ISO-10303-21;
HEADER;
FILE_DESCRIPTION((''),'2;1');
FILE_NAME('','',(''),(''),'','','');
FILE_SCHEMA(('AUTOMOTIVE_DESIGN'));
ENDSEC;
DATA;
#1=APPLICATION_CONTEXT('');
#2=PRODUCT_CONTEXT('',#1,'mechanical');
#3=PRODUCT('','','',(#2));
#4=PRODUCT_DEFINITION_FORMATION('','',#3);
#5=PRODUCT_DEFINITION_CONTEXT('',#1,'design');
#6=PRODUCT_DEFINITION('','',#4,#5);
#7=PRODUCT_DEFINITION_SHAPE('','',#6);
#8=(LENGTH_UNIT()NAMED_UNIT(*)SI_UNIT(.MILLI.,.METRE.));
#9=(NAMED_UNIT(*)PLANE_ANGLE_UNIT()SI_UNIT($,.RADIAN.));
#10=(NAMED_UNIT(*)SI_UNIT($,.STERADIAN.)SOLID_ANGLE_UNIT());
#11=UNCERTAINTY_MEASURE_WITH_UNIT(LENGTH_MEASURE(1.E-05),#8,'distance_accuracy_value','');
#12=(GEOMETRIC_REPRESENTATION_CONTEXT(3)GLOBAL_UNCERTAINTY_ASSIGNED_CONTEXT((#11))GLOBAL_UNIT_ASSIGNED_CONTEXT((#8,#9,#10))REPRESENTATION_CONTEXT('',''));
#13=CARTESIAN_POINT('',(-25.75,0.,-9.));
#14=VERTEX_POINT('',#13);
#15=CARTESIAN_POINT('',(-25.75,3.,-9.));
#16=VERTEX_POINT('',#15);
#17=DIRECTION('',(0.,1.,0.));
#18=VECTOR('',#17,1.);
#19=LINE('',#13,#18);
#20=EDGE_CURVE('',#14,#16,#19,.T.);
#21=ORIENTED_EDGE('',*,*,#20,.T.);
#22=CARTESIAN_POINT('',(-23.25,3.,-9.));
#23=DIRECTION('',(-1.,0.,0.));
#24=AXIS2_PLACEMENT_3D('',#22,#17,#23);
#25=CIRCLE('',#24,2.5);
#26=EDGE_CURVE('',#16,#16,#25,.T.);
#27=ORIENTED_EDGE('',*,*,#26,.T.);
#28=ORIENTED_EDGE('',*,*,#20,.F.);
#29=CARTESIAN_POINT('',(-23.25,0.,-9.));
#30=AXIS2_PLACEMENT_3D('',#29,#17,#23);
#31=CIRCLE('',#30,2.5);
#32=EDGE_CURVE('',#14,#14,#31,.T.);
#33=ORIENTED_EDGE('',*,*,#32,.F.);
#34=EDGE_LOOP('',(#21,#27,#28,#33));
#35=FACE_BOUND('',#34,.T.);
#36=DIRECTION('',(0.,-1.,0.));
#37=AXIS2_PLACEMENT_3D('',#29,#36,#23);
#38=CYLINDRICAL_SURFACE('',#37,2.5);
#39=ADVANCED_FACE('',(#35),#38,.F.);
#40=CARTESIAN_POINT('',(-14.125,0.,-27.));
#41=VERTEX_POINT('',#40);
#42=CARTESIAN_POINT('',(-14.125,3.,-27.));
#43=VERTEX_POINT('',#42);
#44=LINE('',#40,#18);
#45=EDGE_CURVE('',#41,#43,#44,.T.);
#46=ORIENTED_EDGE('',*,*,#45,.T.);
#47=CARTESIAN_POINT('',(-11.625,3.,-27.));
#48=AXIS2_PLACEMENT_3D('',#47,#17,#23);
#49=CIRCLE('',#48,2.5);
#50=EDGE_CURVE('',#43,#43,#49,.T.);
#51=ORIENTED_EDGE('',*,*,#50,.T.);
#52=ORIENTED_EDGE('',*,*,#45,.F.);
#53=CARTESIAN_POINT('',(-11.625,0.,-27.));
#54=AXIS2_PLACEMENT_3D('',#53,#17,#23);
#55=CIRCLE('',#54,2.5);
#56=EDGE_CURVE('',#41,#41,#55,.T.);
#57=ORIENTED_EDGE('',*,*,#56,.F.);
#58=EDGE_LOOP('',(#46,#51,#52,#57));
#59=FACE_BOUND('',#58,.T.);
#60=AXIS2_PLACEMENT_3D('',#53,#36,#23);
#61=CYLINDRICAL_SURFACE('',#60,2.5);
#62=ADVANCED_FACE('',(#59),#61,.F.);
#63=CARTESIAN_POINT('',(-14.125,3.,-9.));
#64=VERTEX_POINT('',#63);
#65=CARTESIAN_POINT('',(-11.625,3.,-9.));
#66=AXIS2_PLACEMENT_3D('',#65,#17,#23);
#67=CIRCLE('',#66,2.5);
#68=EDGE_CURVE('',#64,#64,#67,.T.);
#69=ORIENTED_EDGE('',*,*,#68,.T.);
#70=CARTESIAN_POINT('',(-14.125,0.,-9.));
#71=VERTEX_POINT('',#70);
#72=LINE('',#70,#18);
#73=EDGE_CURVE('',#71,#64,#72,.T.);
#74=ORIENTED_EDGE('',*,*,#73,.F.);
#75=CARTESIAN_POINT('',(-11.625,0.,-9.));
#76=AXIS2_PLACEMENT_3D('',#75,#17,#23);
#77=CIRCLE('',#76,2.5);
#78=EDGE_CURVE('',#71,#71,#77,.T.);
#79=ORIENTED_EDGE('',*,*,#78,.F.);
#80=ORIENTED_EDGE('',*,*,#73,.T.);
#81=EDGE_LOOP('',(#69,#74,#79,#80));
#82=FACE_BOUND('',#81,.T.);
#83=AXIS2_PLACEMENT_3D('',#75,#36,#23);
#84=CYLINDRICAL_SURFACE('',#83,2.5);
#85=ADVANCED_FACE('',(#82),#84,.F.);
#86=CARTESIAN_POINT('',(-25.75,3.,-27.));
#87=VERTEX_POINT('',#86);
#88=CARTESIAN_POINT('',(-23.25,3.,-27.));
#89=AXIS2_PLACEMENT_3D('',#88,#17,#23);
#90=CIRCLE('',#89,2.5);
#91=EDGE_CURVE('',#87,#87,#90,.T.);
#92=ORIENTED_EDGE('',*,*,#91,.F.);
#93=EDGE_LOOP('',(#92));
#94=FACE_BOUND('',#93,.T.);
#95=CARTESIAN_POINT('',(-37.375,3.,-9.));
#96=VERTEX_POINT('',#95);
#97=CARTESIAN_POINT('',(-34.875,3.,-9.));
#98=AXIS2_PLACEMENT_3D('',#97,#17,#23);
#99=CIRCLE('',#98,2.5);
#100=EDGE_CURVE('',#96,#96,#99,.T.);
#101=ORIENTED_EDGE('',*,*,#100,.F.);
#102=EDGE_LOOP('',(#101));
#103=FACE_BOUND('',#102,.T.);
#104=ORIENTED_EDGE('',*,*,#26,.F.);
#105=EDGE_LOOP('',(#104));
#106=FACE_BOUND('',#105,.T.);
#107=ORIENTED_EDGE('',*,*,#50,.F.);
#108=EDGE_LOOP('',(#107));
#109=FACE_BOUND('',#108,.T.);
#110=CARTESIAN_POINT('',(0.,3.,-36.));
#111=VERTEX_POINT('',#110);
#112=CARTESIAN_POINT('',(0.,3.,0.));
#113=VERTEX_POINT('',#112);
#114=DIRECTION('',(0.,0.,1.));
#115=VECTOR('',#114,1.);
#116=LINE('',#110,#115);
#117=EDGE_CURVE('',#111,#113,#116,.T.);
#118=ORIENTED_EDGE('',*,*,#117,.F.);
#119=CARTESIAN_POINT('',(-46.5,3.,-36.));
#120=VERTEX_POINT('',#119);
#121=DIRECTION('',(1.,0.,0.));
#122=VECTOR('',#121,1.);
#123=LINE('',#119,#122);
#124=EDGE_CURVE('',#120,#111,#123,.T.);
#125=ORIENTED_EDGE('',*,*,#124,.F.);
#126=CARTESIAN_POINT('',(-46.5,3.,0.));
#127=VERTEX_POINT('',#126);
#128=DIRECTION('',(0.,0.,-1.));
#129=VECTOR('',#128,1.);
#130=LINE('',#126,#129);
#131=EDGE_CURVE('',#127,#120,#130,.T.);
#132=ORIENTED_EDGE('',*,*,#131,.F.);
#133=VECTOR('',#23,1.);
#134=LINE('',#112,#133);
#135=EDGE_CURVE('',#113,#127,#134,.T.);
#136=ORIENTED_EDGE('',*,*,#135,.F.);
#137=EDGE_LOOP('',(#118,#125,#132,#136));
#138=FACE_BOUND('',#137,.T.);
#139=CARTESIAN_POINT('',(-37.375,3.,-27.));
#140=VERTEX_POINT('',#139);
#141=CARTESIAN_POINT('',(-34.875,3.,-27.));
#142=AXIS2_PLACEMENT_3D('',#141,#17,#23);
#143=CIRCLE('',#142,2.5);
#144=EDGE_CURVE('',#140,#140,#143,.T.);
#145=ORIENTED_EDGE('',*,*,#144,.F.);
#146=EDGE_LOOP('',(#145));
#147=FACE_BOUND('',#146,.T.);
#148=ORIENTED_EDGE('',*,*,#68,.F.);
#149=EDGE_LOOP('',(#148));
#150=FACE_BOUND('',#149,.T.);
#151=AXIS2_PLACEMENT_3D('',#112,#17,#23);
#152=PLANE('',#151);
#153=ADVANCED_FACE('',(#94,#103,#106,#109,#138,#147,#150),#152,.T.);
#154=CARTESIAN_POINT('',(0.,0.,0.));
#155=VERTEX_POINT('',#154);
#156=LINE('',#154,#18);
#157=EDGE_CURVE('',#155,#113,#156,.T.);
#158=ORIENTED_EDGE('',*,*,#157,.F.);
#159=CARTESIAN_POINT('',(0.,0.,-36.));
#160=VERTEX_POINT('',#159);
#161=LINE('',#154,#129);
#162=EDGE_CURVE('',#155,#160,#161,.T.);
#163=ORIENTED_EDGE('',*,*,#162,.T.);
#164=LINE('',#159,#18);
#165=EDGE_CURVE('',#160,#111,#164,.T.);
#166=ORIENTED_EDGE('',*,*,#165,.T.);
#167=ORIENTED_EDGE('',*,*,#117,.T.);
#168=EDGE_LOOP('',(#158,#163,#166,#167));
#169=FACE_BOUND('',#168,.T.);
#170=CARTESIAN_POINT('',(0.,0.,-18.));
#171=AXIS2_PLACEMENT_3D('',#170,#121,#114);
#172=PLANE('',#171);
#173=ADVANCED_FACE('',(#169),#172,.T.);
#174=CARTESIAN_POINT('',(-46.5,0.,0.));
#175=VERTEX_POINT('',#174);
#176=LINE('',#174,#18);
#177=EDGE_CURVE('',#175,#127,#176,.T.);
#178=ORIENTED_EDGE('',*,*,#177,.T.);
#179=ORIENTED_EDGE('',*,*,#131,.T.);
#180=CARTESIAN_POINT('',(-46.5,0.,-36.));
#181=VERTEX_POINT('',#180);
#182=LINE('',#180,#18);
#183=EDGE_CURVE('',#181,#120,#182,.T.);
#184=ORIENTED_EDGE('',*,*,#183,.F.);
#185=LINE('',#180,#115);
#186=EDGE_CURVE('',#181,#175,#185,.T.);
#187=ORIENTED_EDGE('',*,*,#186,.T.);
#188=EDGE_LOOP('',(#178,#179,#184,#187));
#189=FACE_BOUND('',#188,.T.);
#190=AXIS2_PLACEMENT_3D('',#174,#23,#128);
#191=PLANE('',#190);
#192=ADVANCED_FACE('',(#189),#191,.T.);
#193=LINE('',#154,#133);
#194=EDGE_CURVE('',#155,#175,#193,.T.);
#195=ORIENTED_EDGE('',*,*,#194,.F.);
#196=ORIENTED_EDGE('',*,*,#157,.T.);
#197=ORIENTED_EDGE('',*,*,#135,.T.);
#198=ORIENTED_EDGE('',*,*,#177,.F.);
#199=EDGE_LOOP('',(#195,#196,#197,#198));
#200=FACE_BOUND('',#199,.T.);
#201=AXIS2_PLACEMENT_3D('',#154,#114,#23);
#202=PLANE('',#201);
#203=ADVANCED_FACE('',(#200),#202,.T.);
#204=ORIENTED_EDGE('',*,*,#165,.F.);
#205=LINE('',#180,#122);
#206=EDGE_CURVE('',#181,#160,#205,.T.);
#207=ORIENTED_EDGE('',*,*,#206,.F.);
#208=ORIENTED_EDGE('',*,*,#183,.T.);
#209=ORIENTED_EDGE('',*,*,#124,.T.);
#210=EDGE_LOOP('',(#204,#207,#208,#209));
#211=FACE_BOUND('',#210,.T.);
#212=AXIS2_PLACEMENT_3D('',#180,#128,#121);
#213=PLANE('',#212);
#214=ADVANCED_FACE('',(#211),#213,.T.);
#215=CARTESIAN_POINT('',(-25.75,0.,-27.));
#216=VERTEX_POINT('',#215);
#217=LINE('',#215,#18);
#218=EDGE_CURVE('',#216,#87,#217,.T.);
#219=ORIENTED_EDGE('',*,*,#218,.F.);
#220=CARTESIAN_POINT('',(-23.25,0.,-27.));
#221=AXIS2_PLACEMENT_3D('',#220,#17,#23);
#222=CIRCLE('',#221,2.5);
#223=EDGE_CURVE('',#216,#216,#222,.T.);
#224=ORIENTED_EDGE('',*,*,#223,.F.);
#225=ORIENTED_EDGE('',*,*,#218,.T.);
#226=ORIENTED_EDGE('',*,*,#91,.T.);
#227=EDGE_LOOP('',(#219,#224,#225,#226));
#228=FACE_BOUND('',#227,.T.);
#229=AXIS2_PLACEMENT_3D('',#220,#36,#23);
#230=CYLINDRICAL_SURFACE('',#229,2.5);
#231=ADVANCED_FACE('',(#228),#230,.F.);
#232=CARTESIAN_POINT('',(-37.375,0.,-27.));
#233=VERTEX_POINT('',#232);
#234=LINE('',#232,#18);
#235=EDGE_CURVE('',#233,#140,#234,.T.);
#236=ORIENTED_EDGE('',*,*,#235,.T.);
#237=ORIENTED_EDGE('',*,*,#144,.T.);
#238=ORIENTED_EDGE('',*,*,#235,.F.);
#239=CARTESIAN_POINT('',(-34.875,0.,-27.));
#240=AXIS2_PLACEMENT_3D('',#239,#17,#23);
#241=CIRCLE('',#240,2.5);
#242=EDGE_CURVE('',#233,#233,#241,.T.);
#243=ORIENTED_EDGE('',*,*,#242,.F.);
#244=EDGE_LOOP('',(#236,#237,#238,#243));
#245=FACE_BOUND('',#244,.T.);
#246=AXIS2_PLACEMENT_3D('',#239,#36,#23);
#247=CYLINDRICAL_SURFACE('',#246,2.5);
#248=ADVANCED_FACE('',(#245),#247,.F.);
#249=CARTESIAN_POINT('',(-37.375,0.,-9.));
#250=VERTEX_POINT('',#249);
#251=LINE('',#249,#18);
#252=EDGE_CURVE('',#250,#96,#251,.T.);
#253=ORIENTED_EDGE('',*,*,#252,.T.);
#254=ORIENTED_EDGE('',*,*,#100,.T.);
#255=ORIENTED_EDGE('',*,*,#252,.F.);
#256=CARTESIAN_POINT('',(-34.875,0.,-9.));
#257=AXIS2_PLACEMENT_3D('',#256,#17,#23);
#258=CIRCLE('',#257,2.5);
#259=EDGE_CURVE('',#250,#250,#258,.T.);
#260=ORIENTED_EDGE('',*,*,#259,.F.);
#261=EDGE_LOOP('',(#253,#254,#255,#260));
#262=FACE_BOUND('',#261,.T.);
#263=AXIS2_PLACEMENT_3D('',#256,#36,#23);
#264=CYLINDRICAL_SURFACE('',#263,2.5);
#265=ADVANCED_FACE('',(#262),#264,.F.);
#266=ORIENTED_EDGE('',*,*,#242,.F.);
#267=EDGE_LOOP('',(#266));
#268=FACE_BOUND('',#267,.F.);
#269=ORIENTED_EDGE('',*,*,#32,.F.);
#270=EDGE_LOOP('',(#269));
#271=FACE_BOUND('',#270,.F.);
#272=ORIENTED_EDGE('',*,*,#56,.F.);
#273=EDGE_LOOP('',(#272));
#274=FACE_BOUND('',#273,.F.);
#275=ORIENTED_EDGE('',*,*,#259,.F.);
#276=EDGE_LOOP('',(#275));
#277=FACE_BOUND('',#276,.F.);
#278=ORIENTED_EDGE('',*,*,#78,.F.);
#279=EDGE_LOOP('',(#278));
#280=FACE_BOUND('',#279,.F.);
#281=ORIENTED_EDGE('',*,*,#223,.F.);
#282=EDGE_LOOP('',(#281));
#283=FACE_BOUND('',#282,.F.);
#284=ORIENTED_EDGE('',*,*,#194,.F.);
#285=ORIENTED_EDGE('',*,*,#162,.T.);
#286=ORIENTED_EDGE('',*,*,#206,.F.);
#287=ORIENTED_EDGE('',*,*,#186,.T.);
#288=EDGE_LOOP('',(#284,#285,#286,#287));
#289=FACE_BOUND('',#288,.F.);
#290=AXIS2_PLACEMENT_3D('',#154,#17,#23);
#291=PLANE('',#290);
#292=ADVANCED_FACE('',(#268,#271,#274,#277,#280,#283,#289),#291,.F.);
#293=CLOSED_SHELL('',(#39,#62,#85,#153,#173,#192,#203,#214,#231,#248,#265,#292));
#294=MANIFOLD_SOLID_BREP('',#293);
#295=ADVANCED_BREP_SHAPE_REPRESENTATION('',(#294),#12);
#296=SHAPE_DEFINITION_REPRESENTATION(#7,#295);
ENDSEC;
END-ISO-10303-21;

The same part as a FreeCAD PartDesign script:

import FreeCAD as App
import Part
import Sketcher
from FreeCAD import Vector

doc = App.newDocument("Part")
body = doc.addObject("PartDesign::Body", "Body")

# Sketch on XZ plane
sketch1 = body.newObject("Sketcher::SketchObject", "Sketch")
sketch1.AttachmentSupport = (doc.getObject("XZ_Plane"), [""])
sketch1.MapMode = "FlatFace"
sketch1.addGeometry([
    Part.LineSegment(Vector(-46.5, 0, 0), Vector(0, 0, 0)),  # 0
    Part.LineSegment(Vector(0, 0, 0), Vector(0, -36, 0)),  # 1
    Part.LineSegment(Vector(0, -36, 0), Vector(-46.5, -36, 0)),  # 2
    Part.LineSegment(Vector(-46.5, -36, 0), Vector(-46.5, 0, 0)),  # 3
    Part.Circle(Vector(-11.6, -9, 0), Vector(0, 0, 1), 2.5),  # 4
    Part.Circle(Vector(-23.2, -9, 0), Vector(0, 0, 1), 2.5),  # 5
    Part.Circle(Vector(-34.9, -9, 0), Vector(0, 0, 1), 2.5),  # 6
    Part.Circle(Vector(-34.9, -27, 0), Vector(0, 0, 1), 2.5),  # 7
    Part.Circle(Vector(-11.6, -27, 0), Vector(0, 0, 1), 2.5),  # 8
    Part.Circle(Vector(-23.2, -27, 0), Vector(0, 0, 1), 2.5),  # 9
], False)
sketch1.addConstraint([
    Sketcher.Constraint("Coincident", 0, 2, 1, 1),
    Sketcher.Constraint("Coincident", 1, 2, 2, 1),
    Sketcher.Constraint("Coincident", 2, 2, 3, 1),
    Sketcher.Constraint("Coincident", 3, 2, 0, 1),
    Sketcher.Constraint("Horizontal", 0),
    Sketcher.Constraint("Vertical", 1),
    Sketcher.Constraint("Horizontal", 2),
    Sketcher.Constraint("Vertical", 3),
    Sketcher.Constraint("Coincident", 0, 2, -1, 1),
    Sketcher.Constraint("Equal", 4, 5),
    Sketcher.Constraint("Equal", 5, 6),
    Sketcher.Constraint("Equal", 6, 7),
    Sketcher.Constraint("Equal", 7, 8),
    Sketcher.Constraint("Equal", 8, 9),
    Sketcher.Constraint("Horizontal", 4, 3, 5, 3),
    Sketcher.Constraint("Horizontal", 5, 3, 6, 3),
    Sketcher.Constraint("Horizontal", 7, 3, 8, 3),
    Sketcher.Constraint("Horizontal", 8, 3, 9, 3),
    Sketcher.Constraint("Vertical", 6, 3, 7, 3),
    Sketcher.Constraint("Vertical", 4, 3, 8, 3),
    Sketcher.Constraint("Vertical", 5, 3, 9, 3),
    Sketcher.Constraint("Diameter", 4, 5.0),
    Sketcher.Constraint("DistanceY", 1, 2, 1, 1, 36.0),
    Sketcher.Constraint("DistanceX", 0, 1, 0, 2, 46.5),
    Sketcher.Constraint("DistanceY", 7, 3, -1, 1, 27.0),
    Sketcher.Constraint("DistanceY", 1, 2, 4, 3, 27.0),
    Sketcher.Constraint("DistanceX", 4, 3, -1, 1, 11.625),
    Sketcher.Constraint("DistanceX", 5, 3, 4, 3, 11.625),
    Sketcher.Constraint("DistanceX", 6, 3, 5, 3, 11.625),
])
pad1 = body.newObject("PartDesign::Pad", "Pad")
pad1.Profile = sketch1
pad1.Length = 3
pad1.Reversed = True

doc.recompute()
